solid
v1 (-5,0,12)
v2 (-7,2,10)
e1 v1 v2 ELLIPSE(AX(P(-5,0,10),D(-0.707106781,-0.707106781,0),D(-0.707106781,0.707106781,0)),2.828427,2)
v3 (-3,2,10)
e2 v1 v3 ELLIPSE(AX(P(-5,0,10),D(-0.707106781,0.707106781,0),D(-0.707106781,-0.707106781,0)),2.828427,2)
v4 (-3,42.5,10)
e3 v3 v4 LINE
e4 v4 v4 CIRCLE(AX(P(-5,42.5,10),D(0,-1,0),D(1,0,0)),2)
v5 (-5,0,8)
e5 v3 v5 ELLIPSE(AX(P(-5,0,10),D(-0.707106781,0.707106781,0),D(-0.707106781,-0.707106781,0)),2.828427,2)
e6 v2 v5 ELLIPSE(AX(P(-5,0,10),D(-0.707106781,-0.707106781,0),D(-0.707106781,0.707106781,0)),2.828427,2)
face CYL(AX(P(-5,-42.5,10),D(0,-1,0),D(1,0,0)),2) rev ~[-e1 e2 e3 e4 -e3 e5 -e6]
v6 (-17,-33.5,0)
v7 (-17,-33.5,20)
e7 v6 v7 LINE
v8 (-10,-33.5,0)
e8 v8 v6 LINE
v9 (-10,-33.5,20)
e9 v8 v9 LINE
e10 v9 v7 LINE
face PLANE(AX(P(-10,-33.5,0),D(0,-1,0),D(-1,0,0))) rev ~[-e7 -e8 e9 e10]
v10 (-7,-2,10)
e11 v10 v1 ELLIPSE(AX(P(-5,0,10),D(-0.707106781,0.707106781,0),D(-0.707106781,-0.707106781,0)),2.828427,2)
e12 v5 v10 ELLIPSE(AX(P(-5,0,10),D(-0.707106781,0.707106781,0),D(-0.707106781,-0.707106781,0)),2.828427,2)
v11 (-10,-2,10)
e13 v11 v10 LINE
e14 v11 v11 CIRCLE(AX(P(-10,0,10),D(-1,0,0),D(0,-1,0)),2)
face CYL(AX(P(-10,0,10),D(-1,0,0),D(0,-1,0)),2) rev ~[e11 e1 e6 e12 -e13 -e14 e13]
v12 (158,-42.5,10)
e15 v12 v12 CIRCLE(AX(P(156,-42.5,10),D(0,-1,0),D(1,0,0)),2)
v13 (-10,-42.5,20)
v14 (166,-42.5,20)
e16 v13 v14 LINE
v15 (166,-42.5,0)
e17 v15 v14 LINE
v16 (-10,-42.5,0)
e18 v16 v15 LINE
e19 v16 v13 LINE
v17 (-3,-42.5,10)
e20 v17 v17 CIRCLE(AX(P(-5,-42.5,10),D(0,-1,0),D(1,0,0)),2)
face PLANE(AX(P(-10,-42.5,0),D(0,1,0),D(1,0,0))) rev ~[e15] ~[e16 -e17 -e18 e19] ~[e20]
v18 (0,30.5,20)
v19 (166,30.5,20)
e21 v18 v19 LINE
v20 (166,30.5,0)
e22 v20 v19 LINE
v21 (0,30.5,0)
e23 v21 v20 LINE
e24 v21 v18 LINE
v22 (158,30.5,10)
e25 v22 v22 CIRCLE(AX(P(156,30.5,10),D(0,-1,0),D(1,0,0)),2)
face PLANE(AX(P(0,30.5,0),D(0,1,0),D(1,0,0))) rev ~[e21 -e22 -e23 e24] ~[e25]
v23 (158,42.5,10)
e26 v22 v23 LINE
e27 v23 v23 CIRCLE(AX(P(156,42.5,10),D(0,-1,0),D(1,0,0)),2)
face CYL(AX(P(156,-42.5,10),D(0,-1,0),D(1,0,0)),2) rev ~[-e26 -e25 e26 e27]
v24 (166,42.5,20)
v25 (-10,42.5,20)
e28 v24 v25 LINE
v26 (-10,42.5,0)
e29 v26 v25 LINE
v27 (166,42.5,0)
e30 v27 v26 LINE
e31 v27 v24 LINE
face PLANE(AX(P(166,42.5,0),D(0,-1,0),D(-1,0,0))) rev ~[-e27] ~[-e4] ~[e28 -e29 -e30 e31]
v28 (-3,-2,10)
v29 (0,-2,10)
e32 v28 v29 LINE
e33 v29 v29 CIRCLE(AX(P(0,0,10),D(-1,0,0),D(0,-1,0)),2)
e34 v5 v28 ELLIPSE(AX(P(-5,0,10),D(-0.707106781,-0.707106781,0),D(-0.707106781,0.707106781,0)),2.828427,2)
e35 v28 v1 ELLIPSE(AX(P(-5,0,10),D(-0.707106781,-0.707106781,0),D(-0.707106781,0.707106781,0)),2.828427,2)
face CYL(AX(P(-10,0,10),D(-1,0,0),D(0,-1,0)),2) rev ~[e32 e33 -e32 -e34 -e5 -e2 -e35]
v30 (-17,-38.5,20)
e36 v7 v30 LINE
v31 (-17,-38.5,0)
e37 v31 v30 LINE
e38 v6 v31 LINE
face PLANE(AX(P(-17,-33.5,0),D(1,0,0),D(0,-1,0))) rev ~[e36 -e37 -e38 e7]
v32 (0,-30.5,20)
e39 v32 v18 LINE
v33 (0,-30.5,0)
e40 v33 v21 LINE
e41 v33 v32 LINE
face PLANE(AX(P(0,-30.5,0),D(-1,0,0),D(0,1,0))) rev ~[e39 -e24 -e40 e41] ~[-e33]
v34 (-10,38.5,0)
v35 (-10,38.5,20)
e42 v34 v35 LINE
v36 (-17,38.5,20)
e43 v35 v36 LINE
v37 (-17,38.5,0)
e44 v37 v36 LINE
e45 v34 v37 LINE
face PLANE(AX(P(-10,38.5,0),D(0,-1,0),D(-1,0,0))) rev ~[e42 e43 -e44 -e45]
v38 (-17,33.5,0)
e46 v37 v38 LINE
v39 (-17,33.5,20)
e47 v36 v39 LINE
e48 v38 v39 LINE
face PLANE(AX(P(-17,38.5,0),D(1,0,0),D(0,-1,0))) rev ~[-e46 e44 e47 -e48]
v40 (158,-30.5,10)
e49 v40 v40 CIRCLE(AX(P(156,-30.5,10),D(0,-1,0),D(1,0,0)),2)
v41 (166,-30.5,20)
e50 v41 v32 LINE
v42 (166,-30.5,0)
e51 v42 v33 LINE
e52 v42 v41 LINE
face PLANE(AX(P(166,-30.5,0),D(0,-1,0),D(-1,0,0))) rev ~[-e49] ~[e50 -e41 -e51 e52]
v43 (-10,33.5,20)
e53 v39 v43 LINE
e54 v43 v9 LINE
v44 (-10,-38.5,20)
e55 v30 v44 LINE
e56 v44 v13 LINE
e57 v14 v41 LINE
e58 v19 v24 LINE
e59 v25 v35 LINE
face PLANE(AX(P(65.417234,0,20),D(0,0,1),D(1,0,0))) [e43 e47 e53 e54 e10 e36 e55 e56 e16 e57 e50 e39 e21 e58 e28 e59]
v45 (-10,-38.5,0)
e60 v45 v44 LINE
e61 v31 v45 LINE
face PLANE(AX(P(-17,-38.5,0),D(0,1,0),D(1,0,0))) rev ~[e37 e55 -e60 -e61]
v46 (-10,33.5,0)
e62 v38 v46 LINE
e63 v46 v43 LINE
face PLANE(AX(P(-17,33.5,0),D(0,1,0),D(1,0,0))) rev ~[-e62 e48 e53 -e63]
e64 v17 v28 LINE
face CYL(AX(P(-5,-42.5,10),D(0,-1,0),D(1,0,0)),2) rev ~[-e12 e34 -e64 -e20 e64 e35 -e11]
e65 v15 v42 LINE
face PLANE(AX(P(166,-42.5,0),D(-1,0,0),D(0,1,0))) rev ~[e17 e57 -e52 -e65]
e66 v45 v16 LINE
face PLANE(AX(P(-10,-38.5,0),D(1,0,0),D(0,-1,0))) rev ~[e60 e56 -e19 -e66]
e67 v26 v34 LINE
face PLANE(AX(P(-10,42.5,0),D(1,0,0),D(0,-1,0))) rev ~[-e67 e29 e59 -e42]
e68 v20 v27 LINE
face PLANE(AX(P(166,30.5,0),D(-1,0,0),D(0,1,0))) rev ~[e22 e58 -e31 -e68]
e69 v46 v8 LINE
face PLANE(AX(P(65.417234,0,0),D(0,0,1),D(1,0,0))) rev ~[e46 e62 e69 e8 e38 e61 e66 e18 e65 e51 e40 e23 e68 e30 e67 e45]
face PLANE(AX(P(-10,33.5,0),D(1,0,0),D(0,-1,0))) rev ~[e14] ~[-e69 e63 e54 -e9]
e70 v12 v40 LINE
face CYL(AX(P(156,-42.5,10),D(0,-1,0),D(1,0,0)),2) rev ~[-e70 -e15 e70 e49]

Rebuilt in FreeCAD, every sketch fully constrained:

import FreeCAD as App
import Part
import Sketcher
from FreeCAD import Vector

doc = App.newDocument("Part")
params = doc.addObject("Spreadsheet::Sheet", "Params")
for row, (alias, value) in enumerate([
    ("sketch1_width", "176 mm"),
    ("sketch1_width2", "166 mm"),
    ("sketch1_width3", "7 mm"),
    ("sketch1_height", "12 mm"),
    ("sketch1_height2", "61 mm"),
    ("pad1_length", "20 mm"),
    ("sketch2_diameter", "4 mm"),
    ("sketch3_diameter", "4 mm"),
], start=1):
    params.set(f"A{row}", alias)
    params.set(f"B{row}", "=" + value)
    params.setAlias(f"B{row}", alias)

body = doc.addObject("PartDesign::Body", "Body")

# Sketch on XY plane
sketch1 = body.newObject("Sketcher::SketchObject", "Sketch")
sketch1.AttachmentSupport = (doc.getObject("XY_Plane"), [""])
sketch1.MapMode = "FlatFace"
sketch1.addGeometry(Part.LineSegment(Vector(-10, -42.5, 0), Vector(166, -42.5, 0)), False)
sketch1.addGeometry(Part.LineSegment(Vector(166, -42.5, 0), Vector(166, -30.5, 0)), False)
sketch1.addGeometry(Part.LineSegment(Vector(166, -30.5, 0), Vector(0, -30.5, 0)), False)
sketch1.addGeometry(Part.LineSegment(Vector(0, -30.5, 0), Vector(0, 30.5, 0)), False)
sketch1.addGeometry(Part.LineSegment(Vector(0, 30.5, 0), Vector(166, 30.5, 0)), False)
sketch1.addGeometry(Part.LineSegment(Vector(166, 30.5, 0), Vector(166, 42.5, 0)), False)
sketch1.addGeometry(Part.LineSegment(Vector(166, 42.5, 0), Vector(-10, 42.5, 0)), False)
sketch1.addGeometry(Part.LineSegment(Vector(-10, 42.5, 0), Vector(-10, 38.5, 0)), False)
sketch1.addGeometry(Part.LineSegment(Vector(-10, 38.5, 0), Vector(-17, 38.5, 0)), False)
sketch1.addGeometry(Part.LineSegment(Vector(-17, 38.5, 0), Vector(-17, 33.5, 0)), False)
sketch1.addGeometry(Part.LineSegment(Vector(-17, 33.5, 0), Vector(-10, 33.5, 0)), False)
sketch1.addGeometry(Part.LineSegment(Vector(-10, 33.5, 0), Vector(-10, -33.5, 0)), False)
sketch1.addGeometry(Part.LineSegment(Vector(-10, -33.5, 0), Vector(-17, -33.5, 0)), False)
sketch1.addGeometry(Part.LineSegment(Vector(-17, -33.5, 0), Vector(-17, -38.5, 0)), False)
sketch1.addGeometry(Part.LineSegment(Vector(-17, -38.5, 0), Vector(-10, -38.5, 0)), False)
sketch1.addGeometry(Part.LineSegment(Vector(-10, -38.5, 0), Vector(-10, -42.5, 0)), False)
sketch1.addConstraint(Sketcher.Constraint("Coincident", 0, 2, 1, 1))
sketch1.addConstraint(Sketcher.Constraint("Coincident", 1, 2, 2, 1))
sketch1.addConstraint(Sketcher.Constraint("Coincident", 2, 2, 3, 1))
sketch1.addConstraint(Sketcher.Constraint("Coincident", 3, 2, 4, 1))
sketch1.addConstraint(Sketcher.Constraint("Coincident", 4, 2, 5, 1))
sketch1.addConstraint(Sketcher.Constraint("Coincident", 5, 2, 6, 1))
sketch1.addConstraint(Sketcher.Constraint("Coincident", 6, 2, 7, 1))
sketch1.addConstraint(Sketcher.Constraint("Coincident", 7, 2, 8, 1))
sketch1.addConstraint(Sketcher.Constraint("Coincident", 8, 2, 9, 1))
sketch1.addConstraint(Sketcher.Constraint("Coincident", 9, 2, 10, 1))
sketch1.addConstraint(Sketcher.Constraint("Coincident", 10, 2, 11, 1))
sketch1.addConstraint(Sketcher.Constraint("Coincident", 11, 2, 12, 1))
sketch1.addConstraint(Sketcher.Constraint("Coincident", 12, 2, 13, 1))
sketch1.addConstraint(Sketcher.Constraint("Coincident", 13, 2, 14, 1))
sketch1.addConstraint(Sketcher.Constraint("Coincident", 14, 2, 15, 1))
sketch1.addConstraint(Sketcher.Constraint("Coincident", 15, 2, 0, 1))
sketch1.addConstraint(Sketcher.Constraint("Horizontal", 0))
sketch1.addConstraint(Sketcher.Constraint("Vertical", 1))
sketch1.addConstraint(Sketcher.Constraint("Horizontal", 2))
sketch1.addConstraint(Sketcher.Constraint("Vertical", 3))
sketch1.addConstraint(Sketcher.Constraint("Horizontal", 4))
sketch1.addConstraint(Sketcher.Constraint("Vertical", 5))
sketch1.addConstraint(Sketcher.Constraint("Horizontal", 6))
sketch1.addConstraint(Sketcher.Constraint("Vertical", 7))
sketch1.addConstraint(Sketcher.Constraint("Horizontal", 8))
sketch1.addConstraint(Sketcher.Constraint("Vertical", 9))
sketch1.addConstraint(Sketcher.Constraint("Horizontal", 10))
sketch1.addConstraint(Sketcher.Constraint("Vertical", 11))
sketch1.addConstraint(Sketcher.Constraint("Horizontal", 12))
sketch1.addConstraint(Sketcher.Constraint("Vertical", 13))
sketch1.addConstraint(Sketcher.Constraint("Horizontal", 14))
sketch1.addConstraint(Sketcher.Constraint("Vertical", 15))
sketch1.addConstraint(Sketcher.Constraint("Symmetric", 2, 2, 3, 2, -1, 1))
sketch1.addConstraint(Sketcher.Constraint("Symmetric", 0, 2, 5, 2, -1))
sketch1.addConstraint(Sketcher.Constraint("Symmetric", 9, 2, 12, 2, -1))
sketch1.addConstraint(Sketcher.Constraint("Symmetric", 7, 2, 14, 2, -1))
sketch1.addConstraint(Sketcher.Constraint("Vertical", 7, 2, 10, 2))
sketch1.addConstraint(Sketcher.Constraint("DistanceX", 0, 1, 0, 2, 176.0))
sketch1.addConstraint(Sketcher.Constraint("DistanceX", 2, 2, 2, 1, 166.0))
sketch1.addConstraint(Sketcher.Constraint("DistanceX", 8, 2, 8, 1, 7.0))
sketch1.addConstraint(Sketcher.Constraint("DistanceY", 1, 1, 1, 2, 12.0))
sketch1.addConstraint(Sketcher.Constraint("DistanceY", 3, 1, 3, 2, 61.0))
sketch1.addConstraint(Sketcher.Constraint("DistanceY", 7, 2, 7, 1, 4.0))
sketch1.addConstraint(Sketcher.Constraint("DistanceY", 9, 2, 9, 1, 5.0))
sketch1.setExpression("Constraints[37]", "Params.sketch1_width")
sketch1.setExpression("Constraints[38]", "Params.sketch1_width2")
sketch1.setExpression("Constraints[39]", "Params.sketch1_width3")
sketch1.setExpression("Constraints[40]", "Params.sketch1_height")
sketch1.setExpression("Constraints[41]", "Params.sketch1_height2")
pad1 = body.newObject("PartDesign::Pad", "Pad")
pad1.Profile = sketch1
pad1.setExpression("Length", "Params.pad1_length")

# Sketch on YZ plane
sketch2 = body.newObject("Sketcher::SketchObject", "Sketch001")
sketch2.AttachmentSupport = (doc.getObject("YZ_Plane"), [""])
sketch2.MapMode = "FlatFace"
sketch2.AttachmentOffset = App.Placement(Vector(0, 0, -10), App.Rotation())
sketch2.addGeometry(Part.Circle(Vector(0, 10, 0), Vector(0, 0, 1), 2), False)
sketch2.addConstraint(Sketcher.Constraint("PointOnObject", 0, 3, -2))
sketch2.addConstraint(Sketcher.Constraint("Diameter", 0, 4.0))
sketch2.addConstraint(Sketcher.Constraint("DistanceY", -1, 1, 0, 3, 10.0))
sketch2.setExpression("Constraints[1]", "Params.sketch2_diameter")
pocket1 = body.newObject("PartDesign::Pocket", "Pocket")
pocket1.Profile = sketch2
pocket1.Type = "ThroughAll"
pocket1.Reversed = True

# Sketch on XZ plane
sketch3 = body.newObject("Sketcher::SketchObject", "Sketch002")
sketch3.AttachmentSupport = (doc.getObject("XZ_Plane"), [""])
sketch3.MapMode = "FlatFace"
sketch3.AttachmentOffset = App.Placement(Vector(0, 0, 42.5), App.Rotation())
sketch3.addGeometry(Part.Circle(Vector(-5, 10, 0), Vector(0, 0, 1), 2), False)
sketch3.addGeometry(Part.Circle(Vector(156, 10, 0), Vector(0, 0, 1), 2), False)
sketch3.addConstraint(Sketcher.Constraint("Equal", 0, 1))
sketch3.addConstraint(Sketcher.Constraint("Horizontal", 0, 3, 1, 3))
sketch3.addConstraint(Sketcher.Constraint("Diameter", 0, 4.0))
sketch3.addConstraint(Sketcher.Constraint("DistanceX", 0, 3, -1, 1, 5.0))
sketch3.addConstraint(Sketcher.Constraint("DistanceY", -1, 1, 0, 3, 10.0))
sketch3.addConstraint(Sketcher.Constraint("DistanceX", -1, 1, 1, 3, 156.0))
sketch3.setExpression("Constraints[2]", "Params.sketch3_diameter")
pocket2 = body.newObject("PartDesign::Pocket", "Pocket001")
pocket2.Profile = sketch3
pocket2.Type = "ThroughAll"

doc.recompute()
